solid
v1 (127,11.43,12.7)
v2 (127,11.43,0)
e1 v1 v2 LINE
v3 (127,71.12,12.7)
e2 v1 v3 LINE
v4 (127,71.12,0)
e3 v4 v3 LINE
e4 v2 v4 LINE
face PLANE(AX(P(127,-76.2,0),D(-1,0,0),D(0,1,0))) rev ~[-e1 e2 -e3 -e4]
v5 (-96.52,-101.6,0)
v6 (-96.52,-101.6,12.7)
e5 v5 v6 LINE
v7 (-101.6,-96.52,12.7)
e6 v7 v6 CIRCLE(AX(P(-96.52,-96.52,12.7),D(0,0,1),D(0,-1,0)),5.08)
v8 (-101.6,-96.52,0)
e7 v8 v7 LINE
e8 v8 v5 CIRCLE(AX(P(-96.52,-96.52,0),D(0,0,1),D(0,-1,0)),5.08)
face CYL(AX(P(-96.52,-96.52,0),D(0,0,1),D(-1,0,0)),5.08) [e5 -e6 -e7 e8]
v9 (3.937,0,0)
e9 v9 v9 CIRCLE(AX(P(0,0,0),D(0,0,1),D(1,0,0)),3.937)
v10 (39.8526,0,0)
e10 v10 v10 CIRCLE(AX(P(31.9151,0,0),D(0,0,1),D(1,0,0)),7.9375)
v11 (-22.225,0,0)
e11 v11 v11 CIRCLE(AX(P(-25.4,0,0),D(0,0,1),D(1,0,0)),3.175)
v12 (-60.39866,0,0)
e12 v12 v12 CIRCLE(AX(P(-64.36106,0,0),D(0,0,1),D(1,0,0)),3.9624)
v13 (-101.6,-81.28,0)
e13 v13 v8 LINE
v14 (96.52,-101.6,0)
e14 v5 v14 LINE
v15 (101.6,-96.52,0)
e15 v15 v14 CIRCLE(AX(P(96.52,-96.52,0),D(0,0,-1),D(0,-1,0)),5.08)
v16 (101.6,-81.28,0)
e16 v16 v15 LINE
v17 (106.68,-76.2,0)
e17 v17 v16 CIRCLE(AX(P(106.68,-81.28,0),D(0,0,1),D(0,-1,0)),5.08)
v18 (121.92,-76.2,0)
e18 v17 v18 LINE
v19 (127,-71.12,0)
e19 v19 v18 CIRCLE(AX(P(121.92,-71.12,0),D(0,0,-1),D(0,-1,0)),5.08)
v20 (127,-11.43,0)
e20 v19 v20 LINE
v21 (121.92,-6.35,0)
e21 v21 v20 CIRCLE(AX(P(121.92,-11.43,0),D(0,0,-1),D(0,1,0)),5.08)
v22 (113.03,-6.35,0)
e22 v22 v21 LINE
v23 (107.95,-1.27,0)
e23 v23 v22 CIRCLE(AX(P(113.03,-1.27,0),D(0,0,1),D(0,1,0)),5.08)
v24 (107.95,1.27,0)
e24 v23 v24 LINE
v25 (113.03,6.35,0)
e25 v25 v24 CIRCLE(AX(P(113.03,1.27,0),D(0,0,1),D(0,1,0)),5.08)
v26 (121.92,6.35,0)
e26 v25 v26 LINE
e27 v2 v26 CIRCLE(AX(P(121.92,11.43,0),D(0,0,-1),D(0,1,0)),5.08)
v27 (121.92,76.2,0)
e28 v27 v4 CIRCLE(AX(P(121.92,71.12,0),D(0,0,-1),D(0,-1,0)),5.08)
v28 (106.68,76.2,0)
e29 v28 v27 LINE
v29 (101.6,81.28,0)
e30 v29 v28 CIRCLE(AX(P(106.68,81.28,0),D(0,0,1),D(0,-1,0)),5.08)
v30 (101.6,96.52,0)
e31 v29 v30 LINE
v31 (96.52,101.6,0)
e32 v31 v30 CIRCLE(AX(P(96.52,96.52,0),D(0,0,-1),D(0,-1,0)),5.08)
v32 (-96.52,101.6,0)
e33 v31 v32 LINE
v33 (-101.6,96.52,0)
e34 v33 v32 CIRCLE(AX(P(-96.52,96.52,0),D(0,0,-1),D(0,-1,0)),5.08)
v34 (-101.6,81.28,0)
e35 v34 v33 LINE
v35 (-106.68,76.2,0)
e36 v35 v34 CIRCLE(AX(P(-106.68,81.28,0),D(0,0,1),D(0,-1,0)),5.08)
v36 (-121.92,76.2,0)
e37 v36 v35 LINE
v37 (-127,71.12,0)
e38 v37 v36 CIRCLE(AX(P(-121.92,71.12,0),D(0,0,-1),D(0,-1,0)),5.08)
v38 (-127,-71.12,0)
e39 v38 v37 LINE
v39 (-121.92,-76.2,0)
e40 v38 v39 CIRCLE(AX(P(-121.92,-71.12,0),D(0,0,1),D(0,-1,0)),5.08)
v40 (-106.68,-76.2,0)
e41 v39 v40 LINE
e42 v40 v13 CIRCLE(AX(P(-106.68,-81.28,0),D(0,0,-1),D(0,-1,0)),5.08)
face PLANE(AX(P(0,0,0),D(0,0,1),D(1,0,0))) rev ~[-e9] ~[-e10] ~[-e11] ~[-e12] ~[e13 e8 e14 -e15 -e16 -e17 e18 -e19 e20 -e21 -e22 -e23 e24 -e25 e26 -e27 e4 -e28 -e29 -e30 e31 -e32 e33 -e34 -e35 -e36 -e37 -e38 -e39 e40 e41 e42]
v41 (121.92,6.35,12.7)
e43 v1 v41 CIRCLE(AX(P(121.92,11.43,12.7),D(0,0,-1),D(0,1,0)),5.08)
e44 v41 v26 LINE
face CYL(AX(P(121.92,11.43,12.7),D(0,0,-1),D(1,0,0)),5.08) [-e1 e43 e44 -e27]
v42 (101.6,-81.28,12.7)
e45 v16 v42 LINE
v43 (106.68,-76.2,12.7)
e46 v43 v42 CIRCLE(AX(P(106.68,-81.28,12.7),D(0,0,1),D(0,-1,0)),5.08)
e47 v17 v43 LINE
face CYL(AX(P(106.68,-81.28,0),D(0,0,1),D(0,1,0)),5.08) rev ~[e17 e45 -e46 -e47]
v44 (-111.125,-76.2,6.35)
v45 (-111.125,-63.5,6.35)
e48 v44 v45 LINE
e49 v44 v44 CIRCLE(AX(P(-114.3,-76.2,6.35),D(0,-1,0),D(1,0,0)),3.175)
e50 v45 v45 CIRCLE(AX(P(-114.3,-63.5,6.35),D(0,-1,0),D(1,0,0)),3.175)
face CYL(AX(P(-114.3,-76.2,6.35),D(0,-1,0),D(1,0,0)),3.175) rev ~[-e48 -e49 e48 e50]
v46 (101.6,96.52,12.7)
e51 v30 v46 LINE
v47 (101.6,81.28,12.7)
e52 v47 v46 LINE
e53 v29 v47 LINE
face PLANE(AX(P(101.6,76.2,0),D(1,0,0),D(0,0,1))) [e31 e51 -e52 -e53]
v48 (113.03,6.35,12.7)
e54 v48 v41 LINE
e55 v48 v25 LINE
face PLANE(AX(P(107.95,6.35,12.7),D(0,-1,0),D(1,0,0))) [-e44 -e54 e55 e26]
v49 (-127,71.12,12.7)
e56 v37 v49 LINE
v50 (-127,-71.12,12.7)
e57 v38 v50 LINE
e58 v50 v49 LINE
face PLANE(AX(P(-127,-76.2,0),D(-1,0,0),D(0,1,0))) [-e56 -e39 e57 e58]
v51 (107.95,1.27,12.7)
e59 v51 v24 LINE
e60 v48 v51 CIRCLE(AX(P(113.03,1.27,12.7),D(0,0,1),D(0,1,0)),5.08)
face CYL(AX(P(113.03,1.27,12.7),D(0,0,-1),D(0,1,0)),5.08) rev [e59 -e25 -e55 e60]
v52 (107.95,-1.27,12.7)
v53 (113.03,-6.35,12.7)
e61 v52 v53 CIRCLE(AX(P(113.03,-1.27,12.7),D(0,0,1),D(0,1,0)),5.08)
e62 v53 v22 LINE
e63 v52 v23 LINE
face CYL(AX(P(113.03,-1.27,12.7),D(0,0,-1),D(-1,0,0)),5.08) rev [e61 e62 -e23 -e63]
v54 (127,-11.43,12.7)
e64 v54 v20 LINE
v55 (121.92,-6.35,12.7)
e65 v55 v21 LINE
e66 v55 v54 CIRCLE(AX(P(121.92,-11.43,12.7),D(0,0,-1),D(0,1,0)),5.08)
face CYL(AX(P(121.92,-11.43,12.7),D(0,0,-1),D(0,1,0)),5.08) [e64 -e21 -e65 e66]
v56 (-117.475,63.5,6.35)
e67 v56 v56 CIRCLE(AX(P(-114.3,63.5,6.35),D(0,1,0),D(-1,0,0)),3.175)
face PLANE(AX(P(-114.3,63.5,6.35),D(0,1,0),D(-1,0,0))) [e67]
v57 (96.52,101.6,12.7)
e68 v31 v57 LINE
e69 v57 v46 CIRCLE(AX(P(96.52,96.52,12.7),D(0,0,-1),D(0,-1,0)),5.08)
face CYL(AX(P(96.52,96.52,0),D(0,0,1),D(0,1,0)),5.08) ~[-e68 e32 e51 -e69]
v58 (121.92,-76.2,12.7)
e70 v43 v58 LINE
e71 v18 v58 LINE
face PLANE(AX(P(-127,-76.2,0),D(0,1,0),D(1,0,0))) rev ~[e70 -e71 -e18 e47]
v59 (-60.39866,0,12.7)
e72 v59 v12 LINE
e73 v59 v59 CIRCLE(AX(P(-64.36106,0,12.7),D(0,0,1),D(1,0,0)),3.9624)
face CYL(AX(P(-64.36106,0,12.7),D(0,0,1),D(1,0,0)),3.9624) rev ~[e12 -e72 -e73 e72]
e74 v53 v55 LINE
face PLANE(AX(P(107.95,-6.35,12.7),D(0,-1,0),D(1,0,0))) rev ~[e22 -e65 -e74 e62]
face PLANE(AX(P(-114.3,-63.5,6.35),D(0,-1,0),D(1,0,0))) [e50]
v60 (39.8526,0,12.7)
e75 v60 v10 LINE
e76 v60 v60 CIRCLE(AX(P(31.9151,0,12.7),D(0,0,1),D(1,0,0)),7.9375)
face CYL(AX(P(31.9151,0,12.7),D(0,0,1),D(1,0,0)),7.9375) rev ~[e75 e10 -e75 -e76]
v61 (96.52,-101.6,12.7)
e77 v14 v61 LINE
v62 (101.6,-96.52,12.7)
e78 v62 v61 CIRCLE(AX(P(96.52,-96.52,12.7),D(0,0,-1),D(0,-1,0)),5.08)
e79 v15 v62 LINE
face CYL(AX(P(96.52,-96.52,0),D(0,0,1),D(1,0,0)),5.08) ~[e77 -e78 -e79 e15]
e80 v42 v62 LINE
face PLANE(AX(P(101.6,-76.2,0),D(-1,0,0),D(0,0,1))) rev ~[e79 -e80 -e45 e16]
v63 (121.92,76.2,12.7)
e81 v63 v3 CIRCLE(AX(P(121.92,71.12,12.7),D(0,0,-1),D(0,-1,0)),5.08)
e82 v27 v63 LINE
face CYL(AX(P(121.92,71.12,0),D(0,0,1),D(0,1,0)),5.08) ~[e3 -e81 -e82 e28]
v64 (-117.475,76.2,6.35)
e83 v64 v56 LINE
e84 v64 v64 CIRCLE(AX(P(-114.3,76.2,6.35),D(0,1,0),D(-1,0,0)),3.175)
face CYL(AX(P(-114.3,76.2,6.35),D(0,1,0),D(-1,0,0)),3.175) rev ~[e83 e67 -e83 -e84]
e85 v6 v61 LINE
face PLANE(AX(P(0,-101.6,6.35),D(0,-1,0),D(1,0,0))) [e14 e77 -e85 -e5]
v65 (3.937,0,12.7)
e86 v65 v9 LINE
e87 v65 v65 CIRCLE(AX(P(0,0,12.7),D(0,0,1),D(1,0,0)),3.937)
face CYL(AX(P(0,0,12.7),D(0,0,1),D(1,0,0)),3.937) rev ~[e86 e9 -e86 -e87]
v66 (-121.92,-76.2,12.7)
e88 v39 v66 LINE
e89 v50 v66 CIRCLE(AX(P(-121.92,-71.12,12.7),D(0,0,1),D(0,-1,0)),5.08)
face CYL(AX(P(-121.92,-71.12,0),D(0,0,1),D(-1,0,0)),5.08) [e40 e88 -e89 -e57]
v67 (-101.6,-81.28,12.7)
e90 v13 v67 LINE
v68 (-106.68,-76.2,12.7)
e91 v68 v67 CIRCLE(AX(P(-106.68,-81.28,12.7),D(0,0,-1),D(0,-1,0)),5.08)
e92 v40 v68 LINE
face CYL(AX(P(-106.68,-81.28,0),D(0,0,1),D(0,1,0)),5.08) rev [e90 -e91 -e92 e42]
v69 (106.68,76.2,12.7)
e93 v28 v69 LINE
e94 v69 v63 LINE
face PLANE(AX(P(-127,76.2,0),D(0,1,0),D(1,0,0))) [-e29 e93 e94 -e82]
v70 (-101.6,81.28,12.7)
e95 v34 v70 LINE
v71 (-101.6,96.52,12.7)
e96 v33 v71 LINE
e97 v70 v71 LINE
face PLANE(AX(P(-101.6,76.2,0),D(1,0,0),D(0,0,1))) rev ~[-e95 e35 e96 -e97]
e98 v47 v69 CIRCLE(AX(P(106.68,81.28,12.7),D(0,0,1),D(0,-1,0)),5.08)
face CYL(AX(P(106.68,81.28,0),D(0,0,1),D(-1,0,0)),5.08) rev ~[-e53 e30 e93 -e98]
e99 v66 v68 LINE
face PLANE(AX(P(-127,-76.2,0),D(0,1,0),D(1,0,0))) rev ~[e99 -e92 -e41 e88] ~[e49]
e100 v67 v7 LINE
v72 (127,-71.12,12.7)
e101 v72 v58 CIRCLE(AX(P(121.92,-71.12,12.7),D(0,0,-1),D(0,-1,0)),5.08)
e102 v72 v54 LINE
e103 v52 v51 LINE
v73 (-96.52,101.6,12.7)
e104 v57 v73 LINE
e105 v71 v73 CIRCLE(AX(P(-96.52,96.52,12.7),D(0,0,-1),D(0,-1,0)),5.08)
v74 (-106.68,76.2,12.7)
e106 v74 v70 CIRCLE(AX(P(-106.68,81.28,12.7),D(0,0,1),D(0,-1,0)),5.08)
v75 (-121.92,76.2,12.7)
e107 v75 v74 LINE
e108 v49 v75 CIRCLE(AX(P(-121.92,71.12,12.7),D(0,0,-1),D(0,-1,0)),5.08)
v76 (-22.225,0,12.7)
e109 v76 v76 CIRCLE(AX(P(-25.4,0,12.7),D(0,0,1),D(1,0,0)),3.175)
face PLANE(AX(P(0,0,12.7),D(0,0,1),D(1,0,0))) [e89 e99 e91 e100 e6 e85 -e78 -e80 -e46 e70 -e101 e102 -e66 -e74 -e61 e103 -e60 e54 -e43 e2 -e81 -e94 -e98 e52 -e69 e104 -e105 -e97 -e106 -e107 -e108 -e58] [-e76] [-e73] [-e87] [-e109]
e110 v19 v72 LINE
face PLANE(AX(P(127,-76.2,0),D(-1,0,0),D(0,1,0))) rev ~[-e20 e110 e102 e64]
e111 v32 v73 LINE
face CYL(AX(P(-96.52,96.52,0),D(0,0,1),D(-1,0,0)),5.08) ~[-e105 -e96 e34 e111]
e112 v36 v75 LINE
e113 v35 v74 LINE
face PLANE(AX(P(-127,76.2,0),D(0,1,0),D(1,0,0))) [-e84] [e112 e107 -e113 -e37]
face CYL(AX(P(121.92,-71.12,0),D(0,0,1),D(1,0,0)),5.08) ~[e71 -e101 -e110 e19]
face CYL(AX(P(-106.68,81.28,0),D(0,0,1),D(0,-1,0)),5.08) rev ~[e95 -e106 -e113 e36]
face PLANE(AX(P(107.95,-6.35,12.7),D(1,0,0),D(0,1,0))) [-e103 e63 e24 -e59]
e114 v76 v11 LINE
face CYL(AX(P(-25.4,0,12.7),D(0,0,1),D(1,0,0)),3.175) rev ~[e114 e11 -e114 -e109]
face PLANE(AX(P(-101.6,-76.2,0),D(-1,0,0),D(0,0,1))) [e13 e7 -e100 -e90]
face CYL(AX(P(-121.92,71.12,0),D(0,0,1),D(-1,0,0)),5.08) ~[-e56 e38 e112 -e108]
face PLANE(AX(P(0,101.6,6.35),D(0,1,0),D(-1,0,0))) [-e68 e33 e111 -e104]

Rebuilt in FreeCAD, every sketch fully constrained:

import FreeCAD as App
import Part
import Sketcher

V = App.Vector
Q = App.Units.Quantity


def edges_at(feature, points):
    """Names of the edges that pass closest to the given points."""
    edges = feature.Shape.Edges
    near = lambda p: min(range(len(edges)), key=lambda i: edges[i].distToShape(Part.Vertex(*p))[0])
    return sorted({f"Edge{near(p) + 1}" for p in points})


def add_polygon(sketch, points):
    """Adds a closed chain of lines whose ends are joined by coincident constraints."""
    first, n = sketch.GeometryCount, len(points)
    for a, b in zip(points, points[1:] + points[:1]):
        sketch.addGeometry(Part.LineSegment(App.Vector(*a, 0), App.Vector(*b, 0)), False)
    for i in range(n):
        sketch.addConstraint(Sketcher.Constraint("Coincident", first + i, 2, first + (i + 1) % n, 1))

doc = App.newDocument("Part")
body = doc.addObject("PartDesign::Body", "Body")

# Sketch on XY plane
sketch1 = body.newObject("Sketcher::SketchObject", "Sketch")
sketch1.AttachmentSupport = (doc.getObject("XY_Plane"), [""])
sketch1.MapMode = "FlatFace"
add_polygon(sketch1, [(-127, 76), (-127, -76), (127, -76), (127, 76)])  # lines 0-3
sketch1.addConstraint([
    Sketcher.Constraint("Vertical", 0),
    Sketcher.Constraint("Horizontal", 1),
    Sketcher.Constraint("Vertical", 2),
    Sketcher.Constraint("Horizontal", 3),
    Sketcher.Constraint("Symmetric", 0, 2, 2, 2, -1, 1),
    Sketcher.Constraint("DistanceX", 1, 1, 1, 2, Q("10 in")),
    Sketcher.Constraint("DistanceY", 0, 2, 0, 1, Q("6 in")),
])
pad1 = body.newObject("PartDesign::Pad", "Pad")
pad1.Profile = sketch1
pad1.Length = Q("0.5 in")

# Sketch on XZ plane
sketch2 = body.newObject("Sketcher::SketchObject", "Sketch001")
sketch2.AttachmentSupport = (doc.getObject("XZ_Plane"), [""])
sketch2.MapMode = "FlatFace"
sketch2.AttachmentOffset = App.Placement(V(0, 0, -3 * 25.4), App.Rotation())
add_polygon(sketch2, [(102, 13), (102, 0), (-102, 0), (-102, 13)])  # lines 0-3
sketch2.addConstraint([
    Sketcher.Constraint("Vertical", 0),
    Sketcher.Constraint("Horizontal", 1),
    Sketcher.Constraint("Vertical", 2),
    Sketcher.Constraint("Horizontal", 3),
    Sketcher.Constraint("Symmetric", 0, 2, 1, 2, -1, 1),
    Sketcher.Constraint("DistanceX", 1, 2, 1, 1, Q("8 in")),
    Sketcher.Constraint("DistanceY", 0, 2, 0, 1, Q("0.5 in")),
])
pad2 = body.newObject("PartDesign::Pad", "Pad001")
pad2.Profile = sketch2
pad2.Length = Q("1 in")
pad2.Reversed = True

# Sketch on XZ plane
sketch3 = body.newObject("Sketcher::SketchObject", "Sketch002")
sketch3.AttachmentSupport = (doc.getObject("XZ_Plane"), [""])
sketch3.MapMode = "FlatFace"
sketch3.AttachmentOffset = App.Placement(V(0, 0, 3 * 25.4), App.Rotation())
add_polygon(sketch3, [(-102, 13), (-102, 0), (102, 0), (102, 13)])  # lines 0-3
sketch3.addConstraint([
    Sketcher.Constraint("Vertical", 0),
    Sketcher.Constraint("Horizontal", 1),
    Sketcher.Constraint("Vertical", 2),
    Sketcher.Constraint("Horizontal", 3),
    Sketcher.Constraint("Symmetric", 0, 2, 1, 2, -1, 1),
    Sketcher.Constraint("DistanceX", 1, 1, 1, 2, Q("8 in")),
    Sketcher.Constraint("DistanceY", 0, 2, 0, 1, Q("0.5 in")),
])
pad3 = body.newObject("PartDesign::Pad", "Pad002")
pad3.Profile = sketch3
pad3.Length = Q("1 in")

# Sketch on XZ plane
sketch4 = body.newObject("Sketcher::SketchObject", "Sketch003")
sketch4.AttachmentSupport = (doc.getObject("XZ_Plane"), [""])
sketch4.MapMode = "FlatFace"
sketch4.AttachmentOffset = App.Placement(V(0, 0, 3 * 25.4), App.Rotation())
sketch4.addGeometry(Part.Circle(V(-114.3, 6.3, 0), V(0, 0, 1), 3.2), False)
sketch4.addConstraint([
    Sketcher.Constraint("Diameter", 0, Q("0.25 in")),
    Sketcher.Constraint("DistanceX", 0, 3, -1, 1, Q("4.5 in")),
    Sketcher.Constraint("DistanceY", -1, 1, 0, 3, Q("0.25 in")),
])
pocket1 = body.newObject("PartDesign::Pocket", "Pocket")
pocket1.Profile = sketch4
pocket1.Length = Q("0.5 in")

# Sketch on XZ plane
sketch5 = body.newObject("Sketcher::SketchObject", "Sketch004")
sketch5.AttachmentSupport = (doc.getObject("XZ_Plane"), [""])
sketch5.MapMode = "FlatFace"
sketch5.AttachmentOffset = App.Placement(V(0, 0, -3 * 25.4), App.Rotation())
sketch5.addGeometry(Part.Circle(V(-114.3, 6.3, 0), V(0, 0, 1), 3.2), False)
sketch5.addConstraint([
    Sketcher.Constraint("Diameter", 0, Q("0.25 in")),
    Sketcher.Constraint("DistanceX", 0, 3, -1, 1, Q("4.5 in")),
    Sketcher.Constraint("DistanceY", -1, 1, 0, 3, Q("0.25 in")),
])
pocket2 = body.newObject("PartDesign::Pocket", "Pocket001")
pocket2.Profile = sketch5
pocket2.Length = Q("0.5 in")
pocket2.Reversed = True

# Sketch on XY plane
sketch6 = body.newObject("Sketcher::SketchObject", "Sketch005")
sketch6.AttachmentSupport = (doc.getObject("XY_Plane"), [""])
sketch6.MapMode = "FlatFace"
sketch6.AttachmentOffset = App.Placement(V(0, 0, 0.5 * 25.4), App.Rotation())
add_polygon(sketch6, [(108, 6), (108, -6), (127, -6), (127, 6)])  # lines 0-3
sketch6.addConstraint([
    Sketcher.Constraint("Vertical", 0),
    Sketcher.Constraint("Horizontal", 1),
    Sketcher.Constraint("Vertical", 2),
    Sketcher.Constraint("Horizontal", 3),
    Sketcher.Constraint("DistanceY", 0, 2, 0, 1, Q("0.5 in")),
    Sketcher.Constraint("DistanceX", -1, 1, 1, 2, Q("5 in")),
    Sketcher.Constraint("DistanceX", 1, 1, 1, 2, Q("0.75 in")),
    Sketcher.Constraint("DistanceY", 0, 2, -1, 1, Q("0.25 in")),
])
pocket3 = body.newObject("PartDesign::Pocket", "Pocket002")
pocket3.Profile = sketch6
pocket3.Length = Q("1 in")
doc.recompute()

fillet = body.newObject("PartDesign::Fillet", "Fillet")
fillet.Base = (pocket3, edges_at(pocket3, [
    (101.6, -101.6, 6.35),
    (127, -76.2, 6.35),
    (127, -6.35, 6.35),
    (127, 6.35, 6.35),
    (107.95, 6.35, 6.35),
    (107.95, -6.35, 6.35),
    (127, 76.2, 6.35),
    (101.6, 76.2, 6.35),
    (101.6, 101.6, 6.35),
    (101.6, -76.2, 6.35),
    (-101.6, -101.6, 6.35),
    (-101.6, -76.2, 6.35),
    (-127, -76.2, 6.35),
    (-127, 76.2, 6.35),
    (-101.6, 76.2, 6.35),
    (-101.6, 101.6, 6.35),
]))
fillet.Radius = Q("0.2 in")

# Sketch on XY plane
sketch7 = body.newObject("Sketcher::SketchObject", "Sketch006")
sketch7.AttachmentSupport = (doc.getObject("XY_Plane"), [""])
sketch7.MapMode = "FlatFace"
sketch7.AttachmentOffset = App.Placement(V(0, 0, 0.5 * 25.4), App.Rotation())
sketch7.addGeometry(Part.Circle(V(0, 0, 0), V(0, 0, 1), 3.9), False)
sketch7.addConstraint([
    Sketcher.Constraint("Coincident", 0, 3, -1, 1),
    Sketcher.Constraint("Diameter", 0, Q("0.31 in")),
])
pocket4 = body.newObject("PartDesign::Pocket", "Pocket003")
pocket4.Profile = sketch7
pocket4.Length = Q("1 in")

# Sketch on XY plane
sketch8 = body.newObject("Sketcher::SketchObject", "Sketch007")
sketch8.AttachmentSupport = (doc.getObject("XY_Plane"), [""])
sketch8.MapMode = "FlatFace"
sketch8.AttachmentOffset = App.Placement(V(0, 0, 0.5 * 25.4), App.Rotation())
sketch8.addGeometry(Part.Circle(V(32, 0, 0), V(0, 0, 1), 8), False)
sketch8.addConstraint([
    Sketcher.Constraint("PointOnObject", 0, 3, -1),
    Sketcher.Constraint("Diameter", 0, Q("0.625 in")),
    Sketcher.Constraint("DistanceX", -1, 1, 0, 3, Q("1.2565 in")),
])
pocket5 = body.newObject("PartDesign::Pocket", "Pocket004")
pocket5.Profile = sketch8
pocket5.Length = Q("1 in")

# Sketch on XY plane
sketch9 = body.newObject("Sketcher::SketchObject", "Sketch008")
sketch9.AttachmentSupport = (doc.getObject("XY_Plane"), [""])
sketch9.MapMode = "FlatFace"
sketch9.AttachmentOffset = App.Placement(V(0, 0, 0.5 * 25.4), App.Rotation())
sketch9.addGeometry(Part.Circle(V(-64.4, 0, 0), V(0, 0, 1), 4), False)
sketch9.addConstraint([
    Sketcher.Constraint("PointOnObject", 0, 3, -1),
    Sketcher.Constraint("Diameter", 0, Q("0.312 in")),
    Sketcher.Constraint("DistanceX", 0, 3, -1, 1, Q("2.5339 in")),
])
pocket6 = body.newObject("PartDesign::Pocket", "Pocket005")
pocket6.Profile = sketch9
pocket6.Length = Q("1 in")

# Sketch on XY plane
sketch10 = body.newObject("Sketcher::SketchObject", "Sketch009")
sketch10.AttachmentSupport = (doc.getObject("XY_Plane"), [""])
sketch10.MapMode = "FlatFace"
sketch10.AttachmentOffset = App.Placement(V(0, 0, 0.5 * 25.4), App.Rotation())
sketch10.addGeometry(Part.Circle(V(-25.4, 0, 0), V(0, 0, 1), 3.2), False)
sketch10.addConstraint([
    Sketcher.Constraint("PointOnObject", 0, 3, -1),
    Sketcher.Constraint("Diameter", 0, Q("0.25 in")),
    Sketcher.Constraint("DistanceX", 0, 3, -1, 1, Q("1 in")),
])
pocket7 = body.newObject("PartDesign::Pocket", "Pocket006")
pocket7.Profile = sketch10
pocket7.Length = Q("1 in")

doc.recompute()
